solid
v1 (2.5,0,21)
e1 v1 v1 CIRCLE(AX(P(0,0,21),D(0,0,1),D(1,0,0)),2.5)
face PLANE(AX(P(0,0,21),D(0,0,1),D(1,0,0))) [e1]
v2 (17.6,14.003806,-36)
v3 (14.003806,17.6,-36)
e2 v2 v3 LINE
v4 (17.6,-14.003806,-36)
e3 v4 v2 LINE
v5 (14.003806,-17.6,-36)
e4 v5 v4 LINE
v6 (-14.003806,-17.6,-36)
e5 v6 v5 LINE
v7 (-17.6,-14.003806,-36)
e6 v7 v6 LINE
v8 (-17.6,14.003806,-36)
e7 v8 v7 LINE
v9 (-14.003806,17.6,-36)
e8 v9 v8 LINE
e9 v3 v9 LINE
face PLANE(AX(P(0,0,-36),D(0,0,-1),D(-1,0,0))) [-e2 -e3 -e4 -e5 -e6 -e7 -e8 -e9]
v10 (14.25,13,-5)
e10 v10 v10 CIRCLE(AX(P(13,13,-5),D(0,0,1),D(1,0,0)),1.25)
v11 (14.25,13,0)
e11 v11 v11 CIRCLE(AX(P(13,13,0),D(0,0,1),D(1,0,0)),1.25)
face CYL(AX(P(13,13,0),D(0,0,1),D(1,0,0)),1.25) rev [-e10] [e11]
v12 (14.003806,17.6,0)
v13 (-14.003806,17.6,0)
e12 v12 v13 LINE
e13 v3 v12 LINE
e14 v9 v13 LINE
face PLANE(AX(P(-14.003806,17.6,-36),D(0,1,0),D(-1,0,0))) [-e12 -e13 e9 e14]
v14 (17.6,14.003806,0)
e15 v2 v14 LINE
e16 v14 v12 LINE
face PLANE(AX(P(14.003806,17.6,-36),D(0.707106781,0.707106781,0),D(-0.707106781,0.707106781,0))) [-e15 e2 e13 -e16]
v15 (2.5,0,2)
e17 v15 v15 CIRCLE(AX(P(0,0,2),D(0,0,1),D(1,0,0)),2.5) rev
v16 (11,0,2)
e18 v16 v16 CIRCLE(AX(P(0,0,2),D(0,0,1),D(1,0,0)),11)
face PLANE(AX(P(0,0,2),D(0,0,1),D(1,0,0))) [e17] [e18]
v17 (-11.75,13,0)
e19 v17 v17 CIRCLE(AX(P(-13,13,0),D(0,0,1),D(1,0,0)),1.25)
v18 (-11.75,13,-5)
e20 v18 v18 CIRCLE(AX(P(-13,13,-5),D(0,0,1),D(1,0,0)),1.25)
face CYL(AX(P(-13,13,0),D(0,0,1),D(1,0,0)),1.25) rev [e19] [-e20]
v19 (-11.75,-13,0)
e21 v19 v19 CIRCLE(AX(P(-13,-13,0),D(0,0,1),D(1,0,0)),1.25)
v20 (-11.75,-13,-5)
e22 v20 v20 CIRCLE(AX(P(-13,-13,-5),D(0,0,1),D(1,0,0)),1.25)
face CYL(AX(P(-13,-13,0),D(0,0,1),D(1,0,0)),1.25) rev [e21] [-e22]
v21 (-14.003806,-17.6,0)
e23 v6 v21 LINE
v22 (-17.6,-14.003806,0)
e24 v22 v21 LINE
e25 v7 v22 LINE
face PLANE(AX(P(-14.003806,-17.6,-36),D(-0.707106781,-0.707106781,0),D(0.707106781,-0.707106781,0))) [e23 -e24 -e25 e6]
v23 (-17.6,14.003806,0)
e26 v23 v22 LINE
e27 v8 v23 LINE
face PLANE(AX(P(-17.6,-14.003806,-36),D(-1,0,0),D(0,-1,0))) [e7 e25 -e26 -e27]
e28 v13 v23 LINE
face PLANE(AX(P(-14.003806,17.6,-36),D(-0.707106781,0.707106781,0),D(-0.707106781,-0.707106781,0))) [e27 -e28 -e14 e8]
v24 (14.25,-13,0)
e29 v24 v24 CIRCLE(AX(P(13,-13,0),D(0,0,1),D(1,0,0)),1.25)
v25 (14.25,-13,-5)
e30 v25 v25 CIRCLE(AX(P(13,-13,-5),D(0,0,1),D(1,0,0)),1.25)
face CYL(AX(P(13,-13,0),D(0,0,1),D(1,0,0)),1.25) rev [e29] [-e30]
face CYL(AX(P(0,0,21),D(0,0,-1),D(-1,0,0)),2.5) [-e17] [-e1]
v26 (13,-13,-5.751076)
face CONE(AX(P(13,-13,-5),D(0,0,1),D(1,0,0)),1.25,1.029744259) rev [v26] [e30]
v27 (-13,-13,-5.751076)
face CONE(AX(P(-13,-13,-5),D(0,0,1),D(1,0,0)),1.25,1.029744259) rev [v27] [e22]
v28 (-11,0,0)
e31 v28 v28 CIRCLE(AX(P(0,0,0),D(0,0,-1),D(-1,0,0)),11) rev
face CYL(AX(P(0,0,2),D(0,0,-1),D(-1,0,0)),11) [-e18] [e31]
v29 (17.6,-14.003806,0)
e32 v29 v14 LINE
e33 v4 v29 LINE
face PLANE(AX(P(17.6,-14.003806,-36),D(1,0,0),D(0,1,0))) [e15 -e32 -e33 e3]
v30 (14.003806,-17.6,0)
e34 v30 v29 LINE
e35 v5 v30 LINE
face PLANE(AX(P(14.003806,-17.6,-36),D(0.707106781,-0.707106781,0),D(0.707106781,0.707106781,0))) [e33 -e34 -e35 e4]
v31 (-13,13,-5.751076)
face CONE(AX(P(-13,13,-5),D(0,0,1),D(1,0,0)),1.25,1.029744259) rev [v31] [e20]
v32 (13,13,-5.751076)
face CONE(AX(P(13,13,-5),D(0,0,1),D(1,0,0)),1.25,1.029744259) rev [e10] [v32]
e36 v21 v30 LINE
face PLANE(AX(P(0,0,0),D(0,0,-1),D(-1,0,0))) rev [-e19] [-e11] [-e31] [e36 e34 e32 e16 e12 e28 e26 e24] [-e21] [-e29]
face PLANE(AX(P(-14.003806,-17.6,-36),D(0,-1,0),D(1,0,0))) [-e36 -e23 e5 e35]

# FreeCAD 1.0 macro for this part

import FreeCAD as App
import Part
import Sketcher

V = App.Vector


def add_polygon(sketch, points):
    """Adds a closed chain of lines whose ends are joined by coincident constraints."""
    first, n = sketch.GeometryCount, len(points)
    for a, b in zip(points, points[1:] + points[:1]):
        sketch.addGeometry(Part.LineSegment(App.Vector(*a, 0), App.Vector(*b, 0)), False)
    for i in range(n):
        sketch.addConstraint(Sketcher.Constraint("Coincident", first + i, 2, first + (i + 1) % n, 1))

doc = App.newDocument("Part")
body = doc.addObject("PartDesign::Body", "Body")

sketch1 = body.newObject("Sketcher::SketchObject", "Sketch")
sketch1.AttachmentSupport = (doc.getObject("XY_Plane"), [""])
sketch1.MapMode = "FlatFace"
add_polygon(sketch1, [(-14, -18), (14, -18), (18, -14), (18, 14), (14, 18), (-14, 18), (-18, 14), (-18, -14)])
sketch1.addConstraint([
    Sketcher.Constraint("Horizontal", 0),
    Sketcher.Constraint("Vertical", 2),
    Sketcher.Constraint("Horizontal", 4),
    Sketcher.Constraint("Vertical", 6),
    Sketcher.Constraint("Symmetric", 0, 2, 4, 2, -1, 1),
    Sketcher.Constraint("Symmetric", 1, 2, 5, 2, -1, 1),
    Sketcher.Constraint("Perpendicular", 1, 3),
    Sketcher.Constraint("Perpendicular", 5, 7),
    Sketcher.Constraint("Horizontal", 2, 2, 5, 2),
    Sketcher.Constraint("Horizontal", 1, 2, 6, 2),
    Sketcher.Constraint("Vertical", 0, 2, 3, 2),
    Sketcher.Constraint("Equal", 4, 2),
    Sketcher.Constraint("DistanceY", 0, 2, -1, 1, 17.6),
    Sketcher.Constraint("DistanceX", 0, 1, 0, 2, 28.007612),
])
pad1 = body.newObject("PartDesign::Pad", "Pad")
pad1.Profile = sketch1
pad1.Length = 36
pad1.Reversed = True

sketch2 = body.newObject("Sketcher::SketchObject", "Sketch001")
sketch2.AttachmentSupport = (doc.getObject("XY_Plane"), [""])
sketch2.MapMode = "FlatFace"
sketch2.addGeometry(Part.Circle(V(0, 0, 0), V(0, 0, 1), 11), False)
sketch2.addConstraint([
    Sketcher.Constraint("Coincident", 0, 3, -1, 1),
    Sketcher.Constraint("Diameter", 0, 22.0),
])
pad2 = body.newObject("PartDesign::Pad", "Pad001")
pad2.Profile = sketch2
pad2.Length = 2

sketch3 = body.newObject("Sketcher::SketchObject", "Sketch002")
sketch3.AttachmentSupport = (doc.getObject("XY_Plane"), [""])
sketch3.MapMode = "FlatFace"
sketch3.addGeometry(Part.Circle(V(0, 0, 0), V(0, 0, 1), 2.5), False)
sketch3.addConstraint([
    Sketcher.Constraint("Coincident", 0, 3, -1, 1),
    Sketcher.Constraint("Diameter", 0, 5.0),
])
pad3 = body.newObject("PartDesign::Pad", "Pad002")
pad3.Profile = sketch3
pad3.Length = 21

sketch4 = body.newObject("Sketcher::SketchObject", "Sketch003")
sketch4.AttachmentSupport = (doc.getObject("XY_Plane"), [""])
sketch4.MapMode = "FlatFace"
sketch4.addGeometry([
    Part.Circle(V(-13, -13, 0), V(0, 0, 1), 1.2),
    Part.Circle(V(13, -13, 0), V(0, 0, 1), 1.2),
    Part.Circle(V(13, 13, 0), V(0, 0, 1), 1.2),
    Part.Circle(V(-13, 13, 0), V(0, 0, 1), 1.2),
], False)
sketch4.addConstraint([
    Sketcher.Constraint("Equal", 0, 1),
    Sketcher.Constraint("Equal", 1, 2),
    Sketcher.Constraint("Equal", 2, 3),
    Sketcher.Constraint("Symmetric", 0, 3, 2, 3, -1, 1),
    Sketcher.Constraint("Symmetric", 1, 3, 3, 3, -1, 1),
    Sketcher.Constraint("Symmetric", 0, 3, 1, 3, -2),
    Sketcher.Constraint("Diameter", 0, 2.5),
    Sketcher.Constraint("DistanceX", 0, 3, -1, 1, 13.0),
    Sketcher.Constraint("DistanceY", 0, 3, -1, 1, 13.0),
])
doc.recompute()
hole = body.newObject("PartDesign::Hole", "Hole")
hole.Profile = sketch4
hole.ThreadType = "None"
hole.Diameter = 2.5
hole.DepthType = "Dimension"
hole.Depth = 5
hole.DrillPoint = "Angled"
hole.DrillPointAngle = 118

doc.recompute()
